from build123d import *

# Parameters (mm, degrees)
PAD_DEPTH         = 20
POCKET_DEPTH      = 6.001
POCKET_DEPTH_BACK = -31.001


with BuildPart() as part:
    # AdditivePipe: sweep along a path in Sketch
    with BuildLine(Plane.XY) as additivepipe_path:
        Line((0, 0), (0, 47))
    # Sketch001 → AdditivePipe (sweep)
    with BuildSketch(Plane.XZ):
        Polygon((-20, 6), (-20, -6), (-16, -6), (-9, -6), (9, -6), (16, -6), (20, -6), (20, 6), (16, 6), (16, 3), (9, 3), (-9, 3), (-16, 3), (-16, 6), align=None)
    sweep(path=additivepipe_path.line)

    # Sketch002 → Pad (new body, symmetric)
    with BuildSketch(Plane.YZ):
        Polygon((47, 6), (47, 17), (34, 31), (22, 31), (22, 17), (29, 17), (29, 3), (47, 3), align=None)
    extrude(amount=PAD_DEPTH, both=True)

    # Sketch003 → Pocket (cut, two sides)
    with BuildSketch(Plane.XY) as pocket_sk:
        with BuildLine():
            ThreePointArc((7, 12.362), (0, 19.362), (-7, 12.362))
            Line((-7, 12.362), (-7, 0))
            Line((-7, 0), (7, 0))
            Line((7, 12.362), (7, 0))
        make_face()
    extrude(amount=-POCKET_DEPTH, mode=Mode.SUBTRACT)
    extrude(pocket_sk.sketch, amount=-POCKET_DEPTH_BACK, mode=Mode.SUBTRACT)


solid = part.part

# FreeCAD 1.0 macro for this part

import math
import FreeCAD as App
import Part
import Sketcher
from FreeCAD import Vector
Q = App.Units.Quantity

doc = App.newDocument("Part")
body = doc.addObject("PartDesign::Body", "Body")

# Sketch on XZ plane
sketch1 = body.newObject("Sketcher::SketchObject", "Sketch")
sketch1.AttachmentSupport = (doc.getObject("XZ_Plane"), [""])
sketch1.MapMode = "FlatFace"
sketch1.addGeometry([
    Part.LineSegment(Vector(-20, 6, 0), Vector(-20, -6, 0)),  # 0
    Part.LineSegment(Vector(-20, -6, 0), Vector(20, -6, 0)),  # 1
    Part.LineSegment(Vector(20, -6, 0), Vector(20, 6, 0)),  # 2
    Part.LineSegment(Vector(20, 6, 0), Vector(16, 6, 0)),  # 3
    Part.LineSegment(Vector(16, 6, 0), Vector(16, 3, 0)),  # 4
    Part.LineSegment(Vector(16, 3, 0), Vector(-16, 3, 0)),  # 5
    Part.LineSegment(Vector(-16, 3, 0), Vector(-16, 6, 0)),  # 6
    Part.LineSegment(Vector(-16, 6, 0), Vector(-20, 6, 0)),  # 7
], False)
sketch1.addConstraint([
    Sketcher.Constraint("Coincident", 0, 2, 1, 1),
    Sketcher.Constraint("Coincident", 1, 2, 2, 1),
    Sketcher.Constraint("Coincident", 2, 2, 3, 1),
    Sketcher.Constraint("Coincident", 3, 2, 4, 1),
    Sketcher.Constraint("Coincident", 4, 2, 5, 1),
    Sketcher.Constraint("Coincident", 5, 2, 6, 1),
    Sketcher.Constraint("Coincident", 6, 2, 7, 1),
    Sketcher.Constraint("Coincident", 7, 2, 0, 1),
    Sketcher.Constraint("Vertical", 0),
    Sketcher.Constraint("Horizontal", 1),
    Sketcher.Constraint("Vertical", 2),
    Sketcher.Constraint("Horizontal", 3),
    Sketcher.Constraint("Vertical", 4),
    Sketcher.Constraint("Horizontal", 5),
    Sketcher.Constraint("Vertical", 6),
    Sketcher.Constraint("Horizontal", 7),
    Sketcher.Constraint("Symmetric", 0, 2, 2, 2, -1, 1),
    Sketcher.Constraint("Symmetric", 3, 2, 6, 2, -2),
    Sketcher.Constraint("DistanceX", 1, 1, 1, 2, Q("40 mm")),
    Sketcher.Constraint("DistanceX", 3, 2, 3, 1, Q("4 mm")),
    Sketcher.Constraint("DistanceY", 0, 2, 0, 1, Q("12 mm")),
    Sketcher.Constraint("DistanceY", 4, 2, 4, 1, Q("3 mm")),
])

# Sketch on XY plane
sketch2 = body.newObject("Sketcher::SketchObject", "Sketch001")
sketch2.AttachmentSupport = (doc.getObject("XY_Plane"), [""])
sketch2.MapMode = "FlatFace"
sketch2.addGeometry(Part.LineSegment(Vector(0, 0, 0), Vector(0, 47, 0)), False)
sketch2.addConstraint([
    Sketcher.Constraint("Vertical", 0),
    Sketcher.Constraint("Coincident", 0, 1, -1, 1),
    Sketcher.Constraint("DistanceY", 0, 1, 0, 2, Q("47 mm")),
])
doc.recompute()

additivepipe = body.newObject("PartDesign::AdditivePipe", "AdditivePipe")
additivepipe.Profile = sketch1
additivepipe.Spine = (sketch2, ["Edge1"])

# Sketch on YZ plane
sketch3 = body.newObject("Sketcher::SketchObject", "Sketch002")
sketch3.AttachmentSupport = (doc.getObject("YZ_Plane"), [""])
sketch3.MapMode = "FlatFace"
sketch3.addGeometry([
    Part.LineSegment(Vector(47, 17, 0), Vector(34, 31, 0)),  # 0
    Part.LineSegment(Vector(34, 31, 0), Vector(22, 31, 0)),  # 1
    Part.LineSegment(Vector(22, 31, 0), Vector(22, 17, 0)),  # 2
    Part.LineSegment(Vector(22, 17, 0), Vector(29, 17, 0)),  # 3
    Part.LineSegment(Vector(29, 17, 0), Vector(29, 3, 0)),  # 4
    Part.LineSegment(Vector(29, 3, 0), Vector(47, 3, 0)),  # 5
    Part.LineSegment(Vector(47, 3, 0), Vector(47, 17, 0)),  # 6
], False)
sketch3.addConstraint([
    Sketcher.Constraint("Coincident", 0, 2, 1, 1),
    Sketcher.Constraint("Coincident", 1, 2, 2, 1),
    Sketcher.Constraint("Coincident", 2, 2, 3, 1),
    Sketcher.Constraint("Coincident", 3, 2, 4, 1),
    Sketcher.Constraint("Coincident", 4, 2, 5, 1),
    Sketcher.Constraint("Coincident", 5, 2, 6, 1),
    Sketcher.Constraint("Coincident", 6, 2, 0, 1),
    Sketcher.Constraint("Horizontal", 1),
    Sketcher.Constraint("Vertical", 2),
    Sketcher.Constraint("Horizontal", 3),
    Sketcher.Constraint("Vertical", 4),
    Sketcher.Constraint("Horizontal", 5),
    Sketcher.Constraint("Vertical", 6),
    Sketcher.Constraint("Horizontal", 3, 2, 6, 2),
    Sketcher.Constraint("Equal", 2, 4),
    Sketcher.Constraint("DistanceX", 1, 2, 1, 1, Q("12 mm")),
    Sketcher.Constraint("DistanceX", 3, 1, 3, 2, Q("7 mm")),
    Sketcher.Constraint("DistanceX", 5, 1, 5, 2, Q("18 mm")),
    Sketcher.Constraint("DistanceY", 2, 2, 2, 1, Q("14 mm")),
    Sketcher.Constraint("DistanceX", -1, 1, 0, 2, Q("34 mm")),
    Sketcher.Constraint("DistanceY", -1, 1, 0, 2, Q("31 mm")),
])
pad1 = body.newObject("PartDesign::Pad", "Pad")
pad1.Profile = sketch3
pad1.Length = 40
pad1.Midplane = True

# Sketch on XY plane
sketch4 = body.newObject("Sketcher::SketchObject", "Sketch003")
sketch4.AttachmentSupport = (doc.getObject("XY_Plane"), [""])
sketch4.MapMode = "FlatFace"
sketch4.addGeometry([
    Part.ArcOfCircle(Part.Circle(Vector(0, 12.362, 0), Vector(0, 0, 1), 7), math.radians(0), math.radians(180)),
    Part.LineSegment(Vector(-7, 12.362, 0), Vector(-7, 0, 0)),
    Part.LineSegment(Vector(-7, 0, 0), Vector(7, 0, 0)),
    Part.LineSegment(Vector(7, 0, 0), Vector(7, 12.362, 0)),
], False)
sketch4.addConstraint([
    Sketcher.Constraint("Tangent", 0, 2, 1, 1),
    Sketcher.Constraint("Coincident", 1, 2, 2, 1),
    Sketcher.Constraint("Coincident", 2, 2, 3, 1),
    Sketcher.Constraint("Tangent", 3, 2, 0, 1),
    Sketcher.Constraint("Vertical", 1),
    Sketcher.Constraint("Horizontal", 2),
    Sketcher.Constraint("Vertical", 3),
    Sketcher.Constraint("Symmetric", 1, 2, 2, 2, -1, 1),
    Sketcher.Constraint("Radius", 0, Q("7 mm")),
    Sketcher.Constraint("DistanceY", 1, 2, 1, 1, Q("12.362 mm")),
])
pocket1 = body.newObject("PartDesign::Pocket", "Pocket")
pocket1.Profile = sketch4
pocket1.Type = "ThroughAll"
pocket1.Midplane = True

doc.recompute()
